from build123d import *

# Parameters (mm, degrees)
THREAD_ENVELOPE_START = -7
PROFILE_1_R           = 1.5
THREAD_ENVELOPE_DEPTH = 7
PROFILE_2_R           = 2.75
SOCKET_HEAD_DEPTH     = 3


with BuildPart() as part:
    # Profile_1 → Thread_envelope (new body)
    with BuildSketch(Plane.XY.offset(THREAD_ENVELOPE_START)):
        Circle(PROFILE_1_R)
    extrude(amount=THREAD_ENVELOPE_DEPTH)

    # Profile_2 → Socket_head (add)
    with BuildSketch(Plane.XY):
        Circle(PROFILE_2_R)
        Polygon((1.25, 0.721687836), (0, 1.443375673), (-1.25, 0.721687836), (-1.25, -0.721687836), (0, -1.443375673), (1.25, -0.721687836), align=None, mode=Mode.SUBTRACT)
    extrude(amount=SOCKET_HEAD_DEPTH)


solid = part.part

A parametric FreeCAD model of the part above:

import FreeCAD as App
import Part
import Sketcher
from FreeCAD import Vector
Q = App.Units.Quantity

doc = App.newDocument("Part")
params = doc.addObject("Spreadsheet::Sheet", "Params")
for row, (alias, value) in enumerate([
    ("sketch1_diameter", "3 mm"),
    ("pad1_length", "7 mm"),
    ("sketch2_diameter", "5.5 mm"),
    ("pad2_length", "3 mm"),
], start=1):
    params.set(f"A{row}", alias)
    params.set(f"B{row}", "=" + value)
    params.setAlias(f"B{row}", alias)

body = doc.addObject("PartDesign::Body", "Body")

# Sketch on XY plane
sketch1 = body.newObject("Sketcher::SketchObject", "Sketch")
sketch1.AttachmentSupport = (doc.getObject("XY_Plane"), [""])
sketch1.MapMode = "FlatFace"
sketch1.AttachmentOffset = App.Placement(Vector(0, 0, -7), App.Rotation())
sketch1.addGeometry(Part.Circle(Vector(0, 0, 0), Vector(0, 0, 1), 1.5), False)
sketch1.addConstraint([
    Sketcher.Constraint("Coincident", 0, 3, -1, 1),
    Sketcher.Constraint("Diameter", 0, 3.0),
])
sketch1.setExpression("Constraints[1]", "Params.sketch1_diameter")
pad1 = body.newObject("PartDesign::Pad", "Pad")
pad1.Profile = sketch1
pad1.setExpression("Length", "Params.pad1_length")

# Sketch on XY plane
sketch2 = body.newObject("Sketcher::SketchObject", "Sketch001")
sketch2.AttachmentSupport = (doc.getObject("XY_Plane"), [""])
sketch2.MapMode = "FlatFace"
sketch2.addGeometry([
    Part.Circle(Vector(0, 0, 0), Vector(0, 0, 1), 2.8),  # 0
    Part.LineSegment(Vector(0, 1.4, 0), Vector(1.2, 0.7, 0)),  # 1
    Part.LineSegment(Vector(1.2, 0.7, 0), Vector(1.2, -0.7, 0)),  # 2
    Part.LineSegment(Vector(1.2, -0.7, 0), Vector(0, -1.4, 0)),  # 3
    Part.LineSegment(Vector(0, -1.4, 0), Vector(-1.2, -0.7, 0)),  # 4
    Part.LineSegment(Vector(-1.2, -0.7, 0), Vector(-1.2, 0.7, 0)),  # 5
    Part.LineSegment(Vector(-1.2, 0.7, 0), Vector(0, 1.4, 0)),  # 6
], False)
sketch2.addConstraint([
    Sketcher.Constraint("Coincident", 1, 2, 2, 1),
    Sketcher.Constraint("Coincident", 2, 2, 3, 1),
    Sketcher.Constraint("Coincident", 3, 2, 4, 1),
    Sketcher.Constraint("Coincident", 4, 2, 5, 1),
    Sketcher.Constraint("Coincident", 5, 2, 6, 1),
    Sketcher.Constraint("Coincident", 6, 2, 1, 1),
    Sketcher.Constraint("Vertical", 2),
    Sketcher.Constraint("Vertical", 5),
    Sketcher.Constraint("Coincident", 0, 3, -1, 1),
    Sketcher.Constraint("Symmetric", 1, 2, 4, 2, -1, 1),
    Sketcher.Constraint("Symmetric", 3, 2, 6, 2, -1, 1),
    Sketcher.Constraint("PointOnObject", 3, 2, -2),
    Sketcher.Constraint("Parallel", 3, 6),
    Sketcher.Constraint("Horizontal", 2, 2, 4, 2),
    Sketcher.Constraint("Diameter", 0, 5.5),
    Sketcher.Constraint("Angle", 1, Q("-30 deg")),
    Sketcher.Constraint("DistanceX", 4, 2, 2, 2, 2.5),
    Sketcher.Constraint("DistanceY", 2, 2, 2, 1, 1.443376),
])
sketch2.setExpression("Constraints[14]", "Params.sketch2_diameter")
pad2 = body.newObject("PartDesign::Pad", "Pad001")
pad2.Profile = sketch2
pad2.setExpression("Length", "Params.pad2_length")

doc.recompute()
